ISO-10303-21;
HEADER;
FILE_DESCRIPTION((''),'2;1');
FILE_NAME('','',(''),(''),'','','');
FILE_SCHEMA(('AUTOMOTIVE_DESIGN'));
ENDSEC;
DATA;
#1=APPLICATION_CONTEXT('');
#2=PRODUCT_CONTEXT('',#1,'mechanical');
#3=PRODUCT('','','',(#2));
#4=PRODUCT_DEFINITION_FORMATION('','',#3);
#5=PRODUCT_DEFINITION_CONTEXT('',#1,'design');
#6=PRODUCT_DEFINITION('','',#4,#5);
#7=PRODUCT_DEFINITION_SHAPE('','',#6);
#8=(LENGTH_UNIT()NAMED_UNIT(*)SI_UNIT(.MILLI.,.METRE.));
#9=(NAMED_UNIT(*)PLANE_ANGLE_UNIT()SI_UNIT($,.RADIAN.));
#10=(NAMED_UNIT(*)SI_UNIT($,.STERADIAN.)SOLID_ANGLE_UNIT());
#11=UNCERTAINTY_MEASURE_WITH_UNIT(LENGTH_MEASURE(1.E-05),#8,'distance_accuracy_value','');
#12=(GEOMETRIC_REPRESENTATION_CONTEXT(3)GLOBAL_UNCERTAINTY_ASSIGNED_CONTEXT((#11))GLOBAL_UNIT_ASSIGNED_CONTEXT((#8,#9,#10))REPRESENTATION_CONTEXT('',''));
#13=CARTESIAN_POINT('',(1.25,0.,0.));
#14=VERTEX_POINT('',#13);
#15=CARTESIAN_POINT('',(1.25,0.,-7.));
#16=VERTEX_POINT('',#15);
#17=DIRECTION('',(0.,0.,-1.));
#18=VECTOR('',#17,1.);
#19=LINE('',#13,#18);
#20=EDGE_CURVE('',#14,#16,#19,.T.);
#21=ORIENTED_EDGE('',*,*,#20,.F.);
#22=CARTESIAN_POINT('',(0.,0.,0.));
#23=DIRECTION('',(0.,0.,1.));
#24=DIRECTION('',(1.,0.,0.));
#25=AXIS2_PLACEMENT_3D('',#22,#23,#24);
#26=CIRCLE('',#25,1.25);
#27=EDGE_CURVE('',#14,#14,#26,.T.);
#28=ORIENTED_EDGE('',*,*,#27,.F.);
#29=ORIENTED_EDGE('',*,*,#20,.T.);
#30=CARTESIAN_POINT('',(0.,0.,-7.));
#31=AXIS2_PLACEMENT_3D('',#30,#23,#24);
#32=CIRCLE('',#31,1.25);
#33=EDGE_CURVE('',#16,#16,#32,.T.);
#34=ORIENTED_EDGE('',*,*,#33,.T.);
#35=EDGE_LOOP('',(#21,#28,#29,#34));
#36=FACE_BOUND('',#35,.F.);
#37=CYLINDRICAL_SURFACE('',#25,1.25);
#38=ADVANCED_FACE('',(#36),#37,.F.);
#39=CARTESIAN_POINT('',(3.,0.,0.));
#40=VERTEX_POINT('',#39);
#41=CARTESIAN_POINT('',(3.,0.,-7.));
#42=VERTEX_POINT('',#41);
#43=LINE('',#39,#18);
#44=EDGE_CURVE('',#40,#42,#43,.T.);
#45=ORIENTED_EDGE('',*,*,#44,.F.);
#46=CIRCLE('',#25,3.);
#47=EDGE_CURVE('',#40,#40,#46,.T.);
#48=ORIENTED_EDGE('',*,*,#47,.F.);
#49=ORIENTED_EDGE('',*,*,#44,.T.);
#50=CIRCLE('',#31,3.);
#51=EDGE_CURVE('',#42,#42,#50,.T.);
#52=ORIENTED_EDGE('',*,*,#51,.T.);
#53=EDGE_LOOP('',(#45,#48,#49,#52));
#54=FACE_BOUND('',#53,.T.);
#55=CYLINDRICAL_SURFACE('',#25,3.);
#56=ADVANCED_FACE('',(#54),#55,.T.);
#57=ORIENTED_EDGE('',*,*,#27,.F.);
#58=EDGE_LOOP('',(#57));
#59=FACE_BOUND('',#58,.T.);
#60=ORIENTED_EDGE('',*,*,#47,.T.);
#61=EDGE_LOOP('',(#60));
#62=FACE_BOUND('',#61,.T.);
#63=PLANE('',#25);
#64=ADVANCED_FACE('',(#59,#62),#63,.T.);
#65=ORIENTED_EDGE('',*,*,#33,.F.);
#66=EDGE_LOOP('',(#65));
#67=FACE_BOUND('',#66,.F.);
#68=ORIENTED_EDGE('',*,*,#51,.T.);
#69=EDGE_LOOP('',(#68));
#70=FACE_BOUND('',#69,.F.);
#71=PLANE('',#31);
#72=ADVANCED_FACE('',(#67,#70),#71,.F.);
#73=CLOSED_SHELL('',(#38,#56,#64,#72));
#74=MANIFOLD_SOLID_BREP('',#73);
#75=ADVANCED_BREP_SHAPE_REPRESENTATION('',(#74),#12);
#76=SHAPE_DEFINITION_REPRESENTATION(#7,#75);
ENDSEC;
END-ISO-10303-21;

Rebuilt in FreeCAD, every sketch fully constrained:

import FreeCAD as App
import Part
import Sketcher

doc = App.newDocument("Part")
body = doc.addObject("PartDesign::Body", "Body")

sketch1 = body.newObject("Sketcher::SketchObject", "Sketch")
sketch1.AttachmentSupport = (doc.getObject("XY_Plane"), [""])
sketch1.MapMode = "FlatFace"
sketch1.addGeometry([
    Part.Circle(App.Vector(0, 0, 0), App.Vector(0, 0, 1), 3),
    Part.Circle(App.Vector(0, 0, 0), App.Vector(0, 0, 1), 1.2),
], False)
sketch1.addConstraint([
    Sketcher.Constraint("Coincident", 0, 3, -1, 1),
    Sketcher.Constraint("Coincident", 1, 3, -1, 1),
    Sketcher.Constraint("Diameter", 0, 6.0),
    Sketcher.Constraint("Diameter", 1, 2.5),
])
pad1 = body.newObject("PartDesign::Pad", "Pad")
pad1.Profile = sketch1
pad1.Length = 7
pad1.Reversed = True

doc.recompute()
